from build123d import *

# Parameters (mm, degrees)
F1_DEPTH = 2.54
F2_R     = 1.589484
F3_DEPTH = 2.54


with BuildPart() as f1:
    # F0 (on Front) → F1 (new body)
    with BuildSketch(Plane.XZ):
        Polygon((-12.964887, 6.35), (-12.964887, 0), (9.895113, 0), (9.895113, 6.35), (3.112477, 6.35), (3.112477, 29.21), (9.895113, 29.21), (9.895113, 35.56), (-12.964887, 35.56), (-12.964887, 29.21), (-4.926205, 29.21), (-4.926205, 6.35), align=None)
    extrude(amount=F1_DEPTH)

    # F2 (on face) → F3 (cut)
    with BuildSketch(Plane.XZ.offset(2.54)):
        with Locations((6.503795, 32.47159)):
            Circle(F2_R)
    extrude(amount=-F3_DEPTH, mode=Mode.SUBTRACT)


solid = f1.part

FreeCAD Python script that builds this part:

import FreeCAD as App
import Part
import Sketcher
from FreeCAD import Vector
Q = App.Units.Quantity

doc = App.newDocument("Part")
body = doc.addObject("PartDesign::Body", "Body")

# Sketch on XZ plane
sketch1 = body.newObject("Sketcher::SketchObject", "Sketch")
sketch1.AttachmentSupport = (doc.getObject("XZ_Plane"), [""])
sketch1.MapMode = "FlatFace"
sketch1.addGeometry(Part.LineSegment(Vector(-13, 6, 0), Vector(-13, 0, 0)), False)
sketch1.addGeometry(Part.LineSegment(Vector(-13, 0, 0), Vector(10, 0, 0)), False)
sketch1.addGeometry(Part.LineSegment(Vector(10, 0, 0), Vector(10, 6, 0)), False)
sketch1.addGeometry(Part.LineSegment(Vector(10, 6, 0), Vector(3, 6, 0)), False)
sketch1.addGeometry(Part.LineSegment(Vector(3, 6, 0), Vector(3, 29, 0)), False)
sketch1.addGeometry(Part.LineSegment(Vector(3, 29, 0), Vector(10, 29, 0)), False)
sketch1.addGeometry(Part.LineSegment(Vector(10, 29, 0), Vector(10, 36, 0)), False)
sketch1.addGeometry(Part.LineSegment(Vector(10, 36, 0), Vector(-13, 36, 0)), False)
sketch1.addGeometry(Part.LineSegment(Vector(-13, 36, 0), Vector(-13, 29, 0)), False)
sketch1.addGeometry(Part.LineSegment(Vector(-13, 29, 0), Vector(-5, 29, 0)), False)
sketch1.addGeometry(Part.LineSegment(Vector(-5, 29, 0), Vector(-5, 6, 0)), False)
sketch1.addGeometry(Part.LineSegment(Vector(-5, 6, 0), Vector(-13, 6, 0)), False)
sketch1.addConstraint(Sketcher.Constraint("Coincident", 0, 2, 1, 1))
sketch1.addConstraint(Sketcher.Constraint("Coincident", 1, 2, 2, 1))
sketch1.addConstraint(Sketcher.Constraint("Coincident", 2, 2, 3, 1))
sketch1.addConstraint(Sketcher.Constraint("Coincident", 3, 2, 4, 1))
sketch1.addConstraint(Sketcher.Constraint("Coincident", 4, 2, 5, 1))
sketch1.addConstraint(Sketcher.Constraint("Coincident", 5, 2, 6, 1))
sketch1.addConstraint(Sketcher.Constraint("Coincident", 6, 2, 7, 1))
sketch1.addConstraint(Sketcher.Constraint("Coincident", 7, 2, 8, 1))
sketch1.addConstraint(Sketcher.Constraint("Coincident", 8, 2, 9, 1))
sketch1.addConstraint(Sketcher.Constraint("Coincident", 9, 2, 10, 1))
sketch1.addConstraint(Sketcher.Constraint("Coincident", 10, 2, 11, 1))
sketch1.addConstraint(Sketcher.Constraint("Coincident", 11, 2, 0, 1))
sketch1.addConstraint(Sketcher.Constraint("Vertical", 0))
sketch1.addConstraint(Sketcher.Constraint("Horizontal", 1))
sketch1.addConstraint(Sketcher.Constraint("Vertical", 2))
sketch1.addConstraint(Sketcher.Constraint("Horizontal", 3))
sketch1.addConstraint(Sketcher.Constraint("Vertical", 4))
sketch1.addConstraint(Sketcher.Constraint("Horizontal", 5))
sketch1.addConstraint(Sketcher.Constraint("Vertical", 6))
sketch1.addConstraint(Sketcher.Constraint("Horizontal", 7))
sketch1.addConstraint(Sketcher.Constraint("Vertical", 8))
sketch1.addConstraint(Sketcher.Constraint("Horizontal", 9))
sketch1.addConstraint(Sketcher.Constraint("Vertical", 10))
sketch1.addConstraint(Sketcher.Constraint("Horizontal", 11))
sketch1.addConstraint(Sketcher.Constraint("PointOnObject", 0, 2, -1))
sketch1.addConstraint(Sketcher.Constraint("Horizontal", 5, 2, 8, 2))
sketch1.addConstraint(Sketcher.Constraint("Horizontal", 3, 2, 10, 2))
sketch1.addConstraint(Sketcher.Constraint("Vertical", 2, 2, 5, 2))
sketch1.addConstraint(Sketcher.Constraint("Vertical", 0, 2, 7, 2))
sketch1.addConstraint(Sketcher.Constraint("Equal", 7, 4))
sketch1.addConstraint(Sketcher.Constraint("Equal", 2, 6))
sketch1.addConstraint(Sketcher.Constraint("DistanceX", 1, 1, 1, 2, Q("0.9 in")))
sketch1.addConstraint(Sketcher.Constraint("DistanceY", 0, 2, 0, 1, Q("0.25 in")))
sketch1.addConstraint(Sketcher.Constraint("DistanceX", 9, 1, 9, 2, 8.038682))
sketch1.addConstraint(Sketcher.Constraint("DistanceX", 3, 2, 3, 1, 6.782636))
sketch1.addConstraint(Sketcher.Constraint("DistanceX", 0, 2, -1, 1, 12.964887))
pad1 = body.newObject("PartDesign::Pad", "Pad")
pad1.Profile = sketch1
pad1.Length = Q("0.1 in")

# Sketch on XZ plane
sketch2 = body.newObject("Sketcher::SketchObject", "Sketch001")
sketch2.AttachmentSupport = (doc.getObject("XZ_Plane"), [""])
sketch2.MapMode = "FlatFace"
sketch2.AttachmentOffset = App.Placement(Vector(0, 0, 0.1 * 25.4), App.Rotation())
sketch2.addGeometry(Part.Circle(Vector(6.5, 32.5, 0), Vector(0, 0, 1), 1.6), False)
sketch2.addConstraint(Sketcher.Constraint("Diameter", 0, 3.178968))
sketch2.addConstraint(Sketcher.Constraint("DistanceY", -1, 1, 0, 3, 32.47159))
sketch2.addConstraint(Sketcher.Constraint("DistanceX", -1, 1, 0, 3, 6.503795))
pocket1 = body.newObject("PartDesign::Pocket", "Pocket")
pocket1.Profile = sketch2
pocket1.Length = Q("0.1 in")

doc.recompute()
